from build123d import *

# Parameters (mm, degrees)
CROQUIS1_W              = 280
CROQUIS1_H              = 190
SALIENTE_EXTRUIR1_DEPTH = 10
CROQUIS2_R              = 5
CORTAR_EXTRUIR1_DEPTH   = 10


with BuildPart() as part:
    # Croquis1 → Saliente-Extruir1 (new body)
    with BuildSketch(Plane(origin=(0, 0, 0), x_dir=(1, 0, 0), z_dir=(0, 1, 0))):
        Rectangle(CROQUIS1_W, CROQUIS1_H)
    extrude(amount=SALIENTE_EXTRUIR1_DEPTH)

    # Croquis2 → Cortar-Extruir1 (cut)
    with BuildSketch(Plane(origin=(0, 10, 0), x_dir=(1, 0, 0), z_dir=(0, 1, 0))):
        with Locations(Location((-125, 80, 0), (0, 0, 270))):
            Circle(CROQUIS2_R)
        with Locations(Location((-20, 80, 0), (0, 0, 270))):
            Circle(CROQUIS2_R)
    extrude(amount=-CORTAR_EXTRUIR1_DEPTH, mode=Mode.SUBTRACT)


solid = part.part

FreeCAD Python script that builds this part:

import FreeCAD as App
import Part
import Sketcher


def add_polygon(sketch, points):
    """Adds a closed chain of lines whose ends are joined by coincident constraints."""
    first, n = sketch.GeometryCount, len(points)
    for a, b in zip(points, points[1:] + points[:1]):
        sketch.addGeometry(Part.LineSegment(App.Vector(*a, 0), App.Vector(*b, 0)), False)
    for i in range(n):
        sketch.addConstraint(Sketcher.Constraint("Coincident", first + i, 2, first + (i + 1) % n, 1))

doc = App.newDocument("Part")
params = doc.addObject("Spreadsheet::Sheet", "Params")
for row, (alias, value) in enumerate([
    ("sketch1_width", "280 mm"),
    ("sketch1_height", "190 mm"),
    ("pad1_length", "10 mm"),
    ("sketch2_diameter", "10 mm"),
    ("pocket1_length", "10 mm"),
], start=1):
    params.set(f"A{row}", alias)
    params.set(f"B{row}", "=" + value)
    params.setAlias(f"B{row}", alias)

body = doc.addObject("PartDesign::Body", "Body")

# Sketch on XZ plane
sketch1 = body.newObject("Sketcher::SketchObject", "Sketch")
sketch1.AttachmentSupport = (doc.getObject("XZ_Plane"), [""])
sketch1.MapMode = "FlatFace"
add_polygon(sketch1, [(-140, -95), (-140, 95), (140, 95), (140, -95)])  # lines 0-3
sketch1.addConstraint(Sketcher.Constraint("Vertical", 0))
sketch1.addConstraint(Sketcher.Constraint("Horizontal", 1))
sketch1.addConstraint(Sketcher.Constraint("Vertical", 2))
sketch1.addConstraint(Sketcher.Constraint("Horizontal", 3))
sketch1.addConstraint(Sketcher.Constraint("Symmetric", 0, 2, 2, 2, -1, 1))
sketch1.addConstraint(Sketcher.Constraint("DistanceX", 1, 1, 1, 2, 280.0))
sketch1.addConstraint(Sketcher.Constraint("DistanceY", 0, 1, 0, 2, 190.0))
sketch1.setExpression("Constraints[9]", "Params.sketch1_width")
sketch1.setExpression("Constraints[10]", "Params.sketch1_height")
pad1 = body.newObject("PartDesign::Pad", "Pad")
pad1.Profile = sketch1
pad1.setExpression("Length", "Params.pad1_length")
pad1.Reversed = True

# Sketch on XZ plane
sketch2 = body.newObject("Sketcher::SketchObject", "Sketch001")
sketch2.AttachmentSupport = (doc.getObject("XZ_Plane"), [""])
sketch2.MapMode = "FlatFace"
sketch2.AttachmentOffset = App.Placement(App.Vector(0, 0, -10), App.Rotation())
sketch2.addGeometry(Part.Circle(App.Vector(-125, -80, 0), App.Vector(0, 0, 1), 5), False)
sketch2.addGeometry(Part.Circle(App.Vector(-20, -80, 0), App.Vector(0, 0, 1), 5), False)
sketch2.addConstraint(Sketcher.Constraint("Equal", 0, 1))
sketch2.addConstraint(Sketcher.Constraint("Horizontal", 0, 3, 1, 3))
sketch2.addConstraint(Sketcher.Constraint("Diameter", 0, 10.0))
sketch2.addConstraint(Sketcher.Constraint("DistanceX", 0, 3, -1, 1, 125.0))
sketch2.addConstraint(Sketcher.Constraint("DistanceY", 0, 3, -1, 1, 80.0))
sketch2.addConstraint(Sketcher.Constraint("DistanceX", 1, 3, -1, 1, 20.0))
sketch2.setExpression("Constraints[2]", "Params.sketch2_diameter")
pocket1 = body.newObject("PartDesign::Pocket", "Pocket")
pocket1.Profile = sketch2
pocket1.setExpression("Length", "Params.pocket1_length")
pocket1.Reversed = True

doc.recompute()
